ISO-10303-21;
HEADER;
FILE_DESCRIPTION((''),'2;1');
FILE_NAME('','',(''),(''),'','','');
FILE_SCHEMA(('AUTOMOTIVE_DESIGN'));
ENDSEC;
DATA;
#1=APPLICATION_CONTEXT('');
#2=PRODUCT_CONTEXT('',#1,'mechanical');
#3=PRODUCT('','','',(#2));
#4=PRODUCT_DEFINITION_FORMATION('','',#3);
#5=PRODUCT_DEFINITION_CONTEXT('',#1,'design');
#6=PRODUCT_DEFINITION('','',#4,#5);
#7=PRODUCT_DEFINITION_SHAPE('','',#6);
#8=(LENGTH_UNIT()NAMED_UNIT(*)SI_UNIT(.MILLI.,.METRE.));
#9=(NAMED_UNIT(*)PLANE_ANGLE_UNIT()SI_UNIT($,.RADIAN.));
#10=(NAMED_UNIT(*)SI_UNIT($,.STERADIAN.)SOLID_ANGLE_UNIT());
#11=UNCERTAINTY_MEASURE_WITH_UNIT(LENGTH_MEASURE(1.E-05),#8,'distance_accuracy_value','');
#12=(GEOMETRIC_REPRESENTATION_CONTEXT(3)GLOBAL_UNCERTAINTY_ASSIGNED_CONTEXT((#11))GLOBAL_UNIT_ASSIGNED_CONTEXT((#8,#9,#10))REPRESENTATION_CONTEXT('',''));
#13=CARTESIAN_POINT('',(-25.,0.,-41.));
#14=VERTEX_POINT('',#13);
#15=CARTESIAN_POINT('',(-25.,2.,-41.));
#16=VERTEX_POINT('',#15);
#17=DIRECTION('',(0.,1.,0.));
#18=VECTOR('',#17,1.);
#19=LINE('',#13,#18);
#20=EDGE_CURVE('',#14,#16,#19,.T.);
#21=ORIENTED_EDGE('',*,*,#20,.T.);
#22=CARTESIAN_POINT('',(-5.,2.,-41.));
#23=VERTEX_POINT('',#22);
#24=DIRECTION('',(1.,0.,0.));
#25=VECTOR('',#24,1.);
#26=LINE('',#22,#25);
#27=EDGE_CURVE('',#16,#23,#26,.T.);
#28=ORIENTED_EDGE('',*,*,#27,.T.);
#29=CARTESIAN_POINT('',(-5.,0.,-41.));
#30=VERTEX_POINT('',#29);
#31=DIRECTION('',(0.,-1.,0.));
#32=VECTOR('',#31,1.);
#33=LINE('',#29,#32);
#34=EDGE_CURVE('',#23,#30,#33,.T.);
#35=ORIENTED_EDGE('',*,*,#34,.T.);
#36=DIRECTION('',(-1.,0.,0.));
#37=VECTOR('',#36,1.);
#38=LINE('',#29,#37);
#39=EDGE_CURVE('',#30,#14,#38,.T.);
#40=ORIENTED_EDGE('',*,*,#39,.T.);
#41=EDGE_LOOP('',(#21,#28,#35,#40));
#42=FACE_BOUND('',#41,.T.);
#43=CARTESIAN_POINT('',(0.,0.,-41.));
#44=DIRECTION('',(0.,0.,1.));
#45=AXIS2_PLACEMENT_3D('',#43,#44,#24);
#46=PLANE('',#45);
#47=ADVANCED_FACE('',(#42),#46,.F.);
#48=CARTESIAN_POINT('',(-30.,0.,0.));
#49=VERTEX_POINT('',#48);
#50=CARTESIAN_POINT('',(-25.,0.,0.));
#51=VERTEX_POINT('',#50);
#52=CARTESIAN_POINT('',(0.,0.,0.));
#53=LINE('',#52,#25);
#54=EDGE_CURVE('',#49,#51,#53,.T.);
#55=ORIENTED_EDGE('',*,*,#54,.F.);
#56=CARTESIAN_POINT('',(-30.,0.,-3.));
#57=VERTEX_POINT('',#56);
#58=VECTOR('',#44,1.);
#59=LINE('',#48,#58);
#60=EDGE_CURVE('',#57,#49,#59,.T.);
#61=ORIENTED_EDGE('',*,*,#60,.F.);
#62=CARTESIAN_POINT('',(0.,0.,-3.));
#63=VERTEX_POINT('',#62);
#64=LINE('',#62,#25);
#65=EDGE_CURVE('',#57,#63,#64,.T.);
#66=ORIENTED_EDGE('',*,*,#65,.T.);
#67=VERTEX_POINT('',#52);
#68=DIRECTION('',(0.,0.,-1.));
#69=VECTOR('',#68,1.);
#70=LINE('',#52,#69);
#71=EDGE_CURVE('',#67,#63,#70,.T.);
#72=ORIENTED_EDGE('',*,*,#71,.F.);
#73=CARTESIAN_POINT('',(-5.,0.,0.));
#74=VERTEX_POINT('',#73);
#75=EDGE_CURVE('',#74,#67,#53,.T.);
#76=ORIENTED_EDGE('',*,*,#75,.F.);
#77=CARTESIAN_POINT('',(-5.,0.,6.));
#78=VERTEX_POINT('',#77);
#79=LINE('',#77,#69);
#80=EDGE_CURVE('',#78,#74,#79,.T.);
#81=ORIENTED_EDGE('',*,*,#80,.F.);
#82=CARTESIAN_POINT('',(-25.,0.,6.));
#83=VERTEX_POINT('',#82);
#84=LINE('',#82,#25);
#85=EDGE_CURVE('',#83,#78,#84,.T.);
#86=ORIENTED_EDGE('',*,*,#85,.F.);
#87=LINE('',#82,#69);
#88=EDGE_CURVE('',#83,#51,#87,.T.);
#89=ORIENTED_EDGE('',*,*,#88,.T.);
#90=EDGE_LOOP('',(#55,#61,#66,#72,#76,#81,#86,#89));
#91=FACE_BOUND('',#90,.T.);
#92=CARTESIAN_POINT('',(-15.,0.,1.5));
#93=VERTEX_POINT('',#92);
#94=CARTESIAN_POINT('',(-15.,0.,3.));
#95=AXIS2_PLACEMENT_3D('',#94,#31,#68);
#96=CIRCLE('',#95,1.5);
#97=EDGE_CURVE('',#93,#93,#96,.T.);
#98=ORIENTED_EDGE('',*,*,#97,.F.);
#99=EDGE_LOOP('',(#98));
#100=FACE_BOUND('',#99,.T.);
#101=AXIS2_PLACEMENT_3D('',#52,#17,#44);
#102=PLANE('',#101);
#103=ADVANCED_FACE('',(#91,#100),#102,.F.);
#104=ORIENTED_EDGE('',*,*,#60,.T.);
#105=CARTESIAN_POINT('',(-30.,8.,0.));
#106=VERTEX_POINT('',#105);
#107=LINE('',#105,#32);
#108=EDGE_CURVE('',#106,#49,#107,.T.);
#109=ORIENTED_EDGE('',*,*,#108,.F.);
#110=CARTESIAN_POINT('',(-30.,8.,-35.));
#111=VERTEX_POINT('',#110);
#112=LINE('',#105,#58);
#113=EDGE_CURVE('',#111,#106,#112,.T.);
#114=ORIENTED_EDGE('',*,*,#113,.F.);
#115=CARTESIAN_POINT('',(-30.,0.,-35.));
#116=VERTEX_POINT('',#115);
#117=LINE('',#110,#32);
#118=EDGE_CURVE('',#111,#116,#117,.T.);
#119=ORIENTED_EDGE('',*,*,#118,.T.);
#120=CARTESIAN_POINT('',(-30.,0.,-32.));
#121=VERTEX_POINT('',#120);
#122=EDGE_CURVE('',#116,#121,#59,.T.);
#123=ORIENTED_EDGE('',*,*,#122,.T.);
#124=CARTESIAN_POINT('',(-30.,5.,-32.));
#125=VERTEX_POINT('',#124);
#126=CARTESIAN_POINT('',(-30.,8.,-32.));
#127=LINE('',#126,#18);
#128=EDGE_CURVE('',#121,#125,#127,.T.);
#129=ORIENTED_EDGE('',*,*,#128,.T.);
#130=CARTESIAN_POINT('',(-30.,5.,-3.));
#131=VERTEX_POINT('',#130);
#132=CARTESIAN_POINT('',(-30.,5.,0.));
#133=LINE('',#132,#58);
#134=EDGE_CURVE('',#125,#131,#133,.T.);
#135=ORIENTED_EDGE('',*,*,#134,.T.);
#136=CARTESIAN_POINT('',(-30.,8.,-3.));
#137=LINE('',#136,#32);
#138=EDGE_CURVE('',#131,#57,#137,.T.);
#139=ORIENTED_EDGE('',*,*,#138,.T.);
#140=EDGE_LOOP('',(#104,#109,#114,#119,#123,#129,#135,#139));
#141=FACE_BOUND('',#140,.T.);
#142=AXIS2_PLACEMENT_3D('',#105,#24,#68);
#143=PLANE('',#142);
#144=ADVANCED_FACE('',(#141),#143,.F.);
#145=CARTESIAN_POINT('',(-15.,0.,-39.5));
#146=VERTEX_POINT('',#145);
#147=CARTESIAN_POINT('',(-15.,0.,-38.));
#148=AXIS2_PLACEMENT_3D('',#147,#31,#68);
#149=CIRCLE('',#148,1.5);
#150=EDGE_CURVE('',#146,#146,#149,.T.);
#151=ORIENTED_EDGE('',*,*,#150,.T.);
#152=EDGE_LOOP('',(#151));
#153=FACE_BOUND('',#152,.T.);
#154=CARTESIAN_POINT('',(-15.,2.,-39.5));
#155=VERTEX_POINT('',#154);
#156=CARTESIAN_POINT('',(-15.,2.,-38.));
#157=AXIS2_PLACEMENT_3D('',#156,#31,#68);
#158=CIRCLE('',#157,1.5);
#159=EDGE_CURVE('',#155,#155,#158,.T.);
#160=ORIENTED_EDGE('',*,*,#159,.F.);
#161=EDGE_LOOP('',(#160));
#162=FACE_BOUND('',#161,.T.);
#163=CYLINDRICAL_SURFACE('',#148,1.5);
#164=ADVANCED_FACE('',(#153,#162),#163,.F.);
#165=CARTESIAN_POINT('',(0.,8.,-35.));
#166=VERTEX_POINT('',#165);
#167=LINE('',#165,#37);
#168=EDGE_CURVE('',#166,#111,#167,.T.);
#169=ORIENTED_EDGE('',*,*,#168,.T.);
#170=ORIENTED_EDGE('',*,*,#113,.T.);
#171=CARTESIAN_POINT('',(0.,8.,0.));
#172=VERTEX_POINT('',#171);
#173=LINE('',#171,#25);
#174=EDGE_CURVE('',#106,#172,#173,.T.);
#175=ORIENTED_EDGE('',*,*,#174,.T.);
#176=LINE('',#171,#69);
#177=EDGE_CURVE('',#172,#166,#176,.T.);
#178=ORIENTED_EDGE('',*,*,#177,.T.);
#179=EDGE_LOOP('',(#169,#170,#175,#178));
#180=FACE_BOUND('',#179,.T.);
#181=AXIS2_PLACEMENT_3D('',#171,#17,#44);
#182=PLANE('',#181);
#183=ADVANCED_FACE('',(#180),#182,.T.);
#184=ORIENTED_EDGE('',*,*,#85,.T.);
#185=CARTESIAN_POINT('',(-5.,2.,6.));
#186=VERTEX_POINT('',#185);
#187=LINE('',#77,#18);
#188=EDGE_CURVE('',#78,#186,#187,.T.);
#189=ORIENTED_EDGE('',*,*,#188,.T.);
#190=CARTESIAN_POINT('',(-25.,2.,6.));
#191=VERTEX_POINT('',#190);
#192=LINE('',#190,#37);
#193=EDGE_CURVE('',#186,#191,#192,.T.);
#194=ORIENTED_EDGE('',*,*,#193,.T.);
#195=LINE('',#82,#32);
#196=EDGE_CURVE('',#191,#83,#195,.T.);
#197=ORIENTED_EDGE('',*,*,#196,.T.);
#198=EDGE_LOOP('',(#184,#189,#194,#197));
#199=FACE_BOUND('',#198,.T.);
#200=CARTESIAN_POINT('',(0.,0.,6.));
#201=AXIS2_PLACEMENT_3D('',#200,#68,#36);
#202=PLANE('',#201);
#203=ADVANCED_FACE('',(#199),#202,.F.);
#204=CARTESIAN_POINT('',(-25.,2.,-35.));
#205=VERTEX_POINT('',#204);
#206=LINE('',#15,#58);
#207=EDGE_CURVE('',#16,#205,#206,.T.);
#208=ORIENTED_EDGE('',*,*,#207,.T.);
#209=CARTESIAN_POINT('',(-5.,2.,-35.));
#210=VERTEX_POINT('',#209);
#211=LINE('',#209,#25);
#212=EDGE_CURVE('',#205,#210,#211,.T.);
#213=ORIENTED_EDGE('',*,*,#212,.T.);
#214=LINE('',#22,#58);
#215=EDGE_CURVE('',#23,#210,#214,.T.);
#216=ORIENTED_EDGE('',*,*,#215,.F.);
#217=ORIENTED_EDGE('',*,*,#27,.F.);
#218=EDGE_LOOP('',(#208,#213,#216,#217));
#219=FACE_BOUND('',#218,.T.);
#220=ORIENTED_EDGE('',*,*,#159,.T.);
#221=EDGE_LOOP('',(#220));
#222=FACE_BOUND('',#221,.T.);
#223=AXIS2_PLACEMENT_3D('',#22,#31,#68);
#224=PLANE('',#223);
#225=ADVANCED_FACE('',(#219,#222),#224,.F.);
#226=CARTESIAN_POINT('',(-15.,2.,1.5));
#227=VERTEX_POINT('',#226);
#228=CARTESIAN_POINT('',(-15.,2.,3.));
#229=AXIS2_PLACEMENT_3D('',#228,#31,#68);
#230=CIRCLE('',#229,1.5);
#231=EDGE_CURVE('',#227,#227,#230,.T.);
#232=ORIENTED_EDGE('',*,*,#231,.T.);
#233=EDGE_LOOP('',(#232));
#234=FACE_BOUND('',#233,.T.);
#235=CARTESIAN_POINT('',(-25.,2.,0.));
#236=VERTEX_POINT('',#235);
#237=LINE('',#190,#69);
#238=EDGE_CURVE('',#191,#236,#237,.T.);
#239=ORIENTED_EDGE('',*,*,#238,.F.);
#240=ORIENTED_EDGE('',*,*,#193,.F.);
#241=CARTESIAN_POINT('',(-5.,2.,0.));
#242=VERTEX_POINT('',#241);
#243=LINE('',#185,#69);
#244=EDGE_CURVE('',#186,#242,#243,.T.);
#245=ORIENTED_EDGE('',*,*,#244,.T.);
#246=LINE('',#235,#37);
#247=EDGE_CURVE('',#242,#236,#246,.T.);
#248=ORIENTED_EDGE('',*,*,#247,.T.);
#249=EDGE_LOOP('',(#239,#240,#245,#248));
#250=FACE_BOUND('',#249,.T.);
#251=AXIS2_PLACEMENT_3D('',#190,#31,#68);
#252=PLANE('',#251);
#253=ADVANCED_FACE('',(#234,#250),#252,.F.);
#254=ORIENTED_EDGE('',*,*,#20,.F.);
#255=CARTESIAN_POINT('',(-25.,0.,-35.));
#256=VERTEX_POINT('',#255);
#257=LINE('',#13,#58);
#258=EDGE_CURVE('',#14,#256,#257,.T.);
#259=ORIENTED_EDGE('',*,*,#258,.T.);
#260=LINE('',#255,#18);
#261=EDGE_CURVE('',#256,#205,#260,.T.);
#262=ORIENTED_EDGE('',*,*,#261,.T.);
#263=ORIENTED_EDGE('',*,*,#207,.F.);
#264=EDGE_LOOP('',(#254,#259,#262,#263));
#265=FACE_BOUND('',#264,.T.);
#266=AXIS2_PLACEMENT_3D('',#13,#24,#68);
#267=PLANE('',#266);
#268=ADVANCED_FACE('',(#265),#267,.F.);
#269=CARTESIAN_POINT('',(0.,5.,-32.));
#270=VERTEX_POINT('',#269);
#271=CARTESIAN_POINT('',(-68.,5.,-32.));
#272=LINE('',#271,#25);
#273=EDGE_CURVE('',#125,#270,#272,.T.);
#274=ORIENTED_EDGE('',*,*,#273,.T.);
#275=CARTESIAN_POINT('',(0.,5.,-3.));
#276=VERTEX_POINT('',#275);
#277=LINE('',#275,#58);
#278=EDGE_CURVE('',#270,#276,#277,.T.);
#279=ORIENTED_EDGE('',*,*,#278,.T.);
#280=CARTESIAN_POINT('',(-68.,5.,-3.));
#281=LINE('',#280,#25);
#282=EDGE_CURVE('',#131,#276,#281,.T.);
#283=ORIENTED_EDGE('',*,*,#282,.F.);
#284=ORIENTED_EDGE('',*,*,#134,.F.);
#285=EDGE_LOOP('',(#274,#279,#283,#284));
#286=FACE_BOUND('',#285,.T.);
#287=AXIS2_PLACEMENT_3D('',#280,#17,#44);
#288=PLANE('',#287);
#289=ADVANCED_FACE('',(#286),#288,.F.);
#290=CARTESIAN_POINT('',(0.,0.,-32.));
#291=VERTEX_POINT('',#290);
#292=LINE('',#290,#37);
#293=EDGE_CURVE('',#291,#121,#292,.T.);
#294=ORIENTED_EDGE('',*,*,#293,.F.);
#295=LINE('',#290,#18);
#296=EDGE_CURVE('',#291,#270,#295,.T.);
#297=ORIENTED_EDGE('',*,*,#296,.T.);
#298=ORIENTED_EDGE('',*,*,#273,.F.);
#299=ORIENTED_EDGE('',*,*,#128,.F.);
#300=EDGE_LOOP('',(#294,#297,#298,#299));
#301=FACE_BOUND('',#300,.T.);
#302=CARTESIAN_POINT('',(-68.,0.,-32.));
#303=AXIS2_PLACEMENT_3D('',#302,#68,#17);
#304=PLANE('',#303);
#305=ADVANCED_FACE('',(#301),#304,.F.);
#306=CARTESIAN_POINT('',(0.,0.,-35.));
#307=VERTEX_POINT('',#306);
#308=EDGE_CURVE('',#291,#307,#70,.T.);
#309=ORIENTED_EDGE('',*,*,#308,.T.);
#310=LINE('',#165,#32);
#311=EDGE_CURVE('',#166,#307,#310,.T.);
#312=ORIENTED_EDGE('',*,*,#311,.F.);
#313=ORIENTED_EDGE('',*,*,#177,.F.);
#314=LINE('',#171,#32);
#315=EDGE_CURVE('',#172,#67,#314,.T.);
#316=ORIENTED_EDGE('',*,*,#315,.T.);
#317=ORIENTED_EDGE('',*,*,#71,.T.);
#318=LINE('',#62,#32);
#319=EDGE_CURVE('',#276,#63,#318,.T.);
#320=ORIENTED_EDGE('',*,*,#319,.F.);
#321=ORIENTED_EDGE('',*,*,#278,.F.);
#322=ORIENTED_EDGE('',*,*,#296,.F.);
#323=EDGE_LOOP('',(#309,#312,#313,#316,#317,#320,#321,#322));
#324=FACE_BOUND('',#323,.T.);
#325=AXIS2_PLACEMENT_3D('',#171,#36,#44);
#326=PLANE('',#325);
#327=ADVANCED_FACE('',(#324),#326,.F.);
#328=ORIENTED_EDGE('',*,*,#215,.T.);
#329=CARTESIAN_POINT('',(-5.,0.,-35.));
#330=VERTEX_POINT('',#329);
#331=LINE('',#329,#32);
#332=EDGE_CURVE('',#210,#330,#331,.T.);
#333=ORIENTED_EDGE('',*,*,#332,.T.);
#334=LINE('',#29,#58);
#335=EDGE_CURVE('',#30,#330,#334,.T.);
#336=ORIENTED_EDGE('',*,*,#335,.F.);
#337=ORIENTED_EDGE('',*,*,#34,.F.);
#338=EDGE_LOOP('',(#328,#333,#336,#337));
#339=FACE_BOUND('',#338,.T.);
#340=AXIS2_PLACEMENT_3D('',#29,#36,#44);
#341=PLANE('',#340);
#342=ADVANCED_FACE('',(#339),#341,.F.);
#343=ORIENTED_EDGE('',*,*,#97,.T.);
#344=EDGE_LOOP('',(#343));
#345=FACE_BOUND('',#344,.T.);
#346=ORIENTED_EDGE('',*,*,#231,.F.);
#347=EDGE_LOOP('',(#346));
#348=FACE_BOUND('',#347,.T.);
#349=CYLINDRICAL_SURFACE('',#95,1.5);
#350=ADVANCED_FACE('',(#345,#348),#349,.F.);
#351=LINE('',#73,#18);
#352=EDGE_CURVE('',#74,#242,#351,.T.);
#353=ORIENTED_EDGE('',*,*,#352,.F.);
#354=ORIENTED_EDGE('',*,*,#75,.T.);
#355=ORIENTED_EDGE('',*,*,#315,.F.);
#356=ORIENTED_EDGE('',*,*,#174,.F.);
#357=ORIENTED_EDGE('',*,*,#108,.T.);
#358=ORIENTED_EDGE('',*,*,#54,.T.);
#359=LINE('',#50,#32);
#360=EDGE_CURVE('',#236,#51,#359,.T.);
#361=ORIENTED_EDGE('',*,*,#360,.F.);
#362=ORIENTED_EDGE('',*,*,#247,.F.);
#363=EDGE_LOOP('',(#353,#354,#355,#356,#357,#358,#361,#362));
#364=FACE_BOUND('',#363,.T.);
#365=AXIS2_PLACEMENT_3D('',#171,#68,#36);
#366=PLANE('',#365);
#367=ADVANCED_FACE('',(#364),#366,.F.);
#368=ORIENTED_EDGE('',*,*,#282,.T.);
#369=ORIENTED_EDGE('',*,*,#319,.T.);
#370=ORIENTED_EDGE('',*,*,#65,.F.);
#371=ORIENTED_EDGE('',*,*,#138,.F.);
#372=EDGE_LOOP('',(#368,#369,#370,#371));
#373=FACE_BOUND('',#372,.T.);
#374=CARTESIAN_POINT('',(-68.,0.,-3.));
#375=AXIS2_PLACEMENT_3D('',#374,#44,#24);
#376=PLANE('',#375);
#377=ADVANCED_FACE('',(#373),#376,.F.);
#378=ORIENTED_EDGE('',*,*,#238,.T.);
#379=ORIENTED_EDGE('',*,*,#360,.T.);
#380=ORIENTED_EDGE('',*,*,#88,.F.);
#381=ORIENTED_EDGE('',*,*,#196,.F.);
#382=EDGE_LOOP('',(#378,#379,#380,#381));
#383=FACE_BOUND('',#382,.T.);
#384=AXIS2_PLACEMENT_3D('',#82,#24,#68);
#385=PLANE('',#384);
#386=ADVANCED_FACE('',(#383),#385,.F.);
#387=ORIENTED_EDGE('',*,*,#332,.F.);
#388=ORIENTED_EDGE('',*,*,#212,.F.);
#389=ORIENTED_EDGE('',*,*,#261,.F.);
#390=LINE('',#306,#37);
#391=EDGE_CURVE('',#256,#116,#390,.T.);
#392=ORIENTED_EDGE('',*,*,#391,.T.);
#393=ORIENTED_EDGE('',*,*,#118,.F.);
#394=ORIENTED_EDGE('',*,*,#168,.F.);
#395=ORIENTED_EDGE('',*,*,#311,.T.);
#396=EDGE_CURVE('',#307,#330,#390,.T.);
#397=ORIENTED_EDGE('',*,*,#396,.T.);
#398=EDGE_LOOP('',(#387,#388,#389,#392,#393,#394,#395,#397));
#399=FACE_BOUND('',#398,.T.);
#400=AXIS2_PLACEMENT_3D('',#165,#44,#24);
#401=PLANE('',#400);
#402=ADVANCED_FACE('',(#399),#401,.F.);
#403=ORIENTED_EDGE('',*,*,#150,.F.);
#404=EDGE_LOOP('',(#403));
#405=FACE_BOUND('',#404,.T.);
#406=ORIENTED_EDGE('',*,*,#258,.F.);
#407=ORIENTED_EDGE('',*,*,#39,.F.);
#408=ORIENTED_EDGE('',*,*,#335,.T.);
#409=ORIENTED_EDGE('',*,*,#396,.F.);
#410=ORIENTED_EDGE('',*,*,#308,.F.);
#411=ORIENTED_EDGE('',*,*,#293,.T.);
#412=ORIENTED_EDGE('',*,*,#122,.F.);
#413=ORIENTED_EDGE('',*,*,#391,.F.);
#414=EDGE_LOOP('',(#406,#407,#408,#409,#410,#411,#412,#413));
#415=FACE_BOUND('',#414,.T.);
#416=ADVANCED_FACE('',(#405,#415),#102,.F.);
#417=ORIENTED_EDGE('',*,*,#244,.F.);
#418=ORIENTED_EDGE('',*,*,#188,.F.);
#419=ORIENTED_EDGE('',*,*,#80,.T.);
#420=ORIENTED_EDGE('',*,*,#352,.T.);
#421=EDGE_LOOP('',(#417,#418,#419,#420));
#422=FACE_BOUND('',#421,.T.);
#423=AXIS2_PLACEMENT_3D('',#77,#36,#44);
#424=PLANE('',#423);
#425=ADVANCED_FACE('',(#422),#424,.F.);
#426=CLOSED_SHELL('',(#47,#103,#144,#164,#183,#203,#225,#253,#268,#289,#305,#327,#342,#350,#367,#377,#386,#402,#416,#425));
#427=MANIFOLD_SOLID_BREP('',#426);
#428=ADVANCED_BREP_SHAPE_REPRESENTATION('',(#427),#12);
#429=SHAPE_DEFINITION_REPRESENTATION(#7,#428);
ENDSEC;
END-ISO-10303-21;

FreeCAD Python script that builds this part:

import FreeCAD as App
import Part
import Sketcher
from FreeCAD import Vector
Q = App.Units.Quantity


def add_polygon(sketch, points):
    """Adds a closed chain of lines whose ends are joined by coincident constraints."""
    first, n = sketch.GeometryCount, len(points)
    for a, b in zip(points, points[1:] + points[:1]):
        sketch.addGeometry(Part.LineSegment(App.Vector(*a, 0), App.Vector(*b, 0)), False)
    for i in range(n):
        sketch.addConstraint(Sketcher.Constraint("Coincident", first + i, 2, first + (i + 1) % n, 1))

doc = App.newDocument("Part")
body = doc.addObject("PartDesign::Body", "Body")

# Sketch on XZ plane
sketch1 = body.newObject("Sketcher::SketchObject", "Sketch")
sketch1.AttachmentSupport = (doc.getObject("XZ_Plane"), [""])
sketch1.MapMode = "FlatFace"
add_polygon(sketch1, [(-30, -35), (-30, 0), (0, 0), (0, -35)])  # lines 0-3
sketch1.addConstraint([
    Sketcher.Constraint("Vertical", 0),
    Sketcher.Constraint("Horizontal", 1),
    Sketcher.Constraint("Vertical", 2),
    Sketcher.Constraint("Horizontal", 3),
    Sketcher.Constraint("Coincident", 1, 2, -1, 1),
    Sketcher.Constraint("DistanceX", 1, 1, 1, 2, Q("30 mm")),
    Sketcher.Constraint("DistanceY", 0, 1, 0, 2, Q("35 mm")),
])
pad1 = body.newObject("PartDesign::Pad", "Pad")
pad1.Profile = sketch1
pad1.Length = 8
pad1.Reversed = True

# Sketch on YZ plane
sketch2 = body.newObject("Sketcher::SketchObject", "Sketch001")
sketch2.AttachmentSupport = (doc.getObject("YZ_Plane"), [""])
sketch2.MapMode = "FlatFace"
add_polygon(sketch2, [(5, -3), (0, -3), (0, -32), (5, -32)])  # lines 0-3
sketch2.addConstraint([
    Sketcher.Constraint("Horizontal", 0),
    Sketcher.Constraint("Vertical", 1),
    Sketcher.Constraint("Horizontal", 2),
    Sketcher.Constraint("Vertical", 3),
    Sketcher.Constraint("PointOnObject", 0, 2, -2),
    Sketcher.Constraint("DistanceX", 0, 2, 0, 1, Q("5 mm")),
    Sketcher.Constraint("DistanceY", 1, 2, 1, 1, Q("29 mm")),
    Sketcher.Constraint("DistanceY", 0, 2, -1, 1, Q("3 mm")),
])
pocket1 = body.newObject("PartDesign::Pocket", "Pocket")
pocket1.Profile = sketch2
pocket1.Length = 68

# Sketch on XY plane
sketch3 = body.newObject("Sketcher::SketchObject", "Sketch002")
sketch3.AttachmentSupport = (doc.getObject("XY_Plane"), [""])
sketch3.MapMode = "FlatFace"
add_polygon(sketch3, [(-25, 2), (-25, 0), (-5, 0), (-5, 2)])  # lines 0-3
sketch3.addConstraint([
    Sketcher.Constraint("Vertical", 0),
    Sketcher.Constraint("Horizontal", 1),
    Sketcher.Constraint("Vertical", 2),
    Sketcher.Constraint("Horizontal", 3),
    Sketcher.Constraint("PointOnObject", 0, 2, -1),
    Sketcher.Constraint("DistanceX", 1, 1, 1, 2, Q("20 mm")),
    Sketcher.Constraint("DistanceY", 0, 2, 0, 1, Q("2 mm")),
    Sketcher.Constraint("DistanceX", 0, 2, -1, 1, Q("25 mm")),
])
pad2 = body.newObject("PartDesign::Pad", "Pad001")
pad2.Profile = sketch3
pad2.Length = 6

# Sketch on XY plane
sketch4 = body.newObject("Sketcher::SketchObject", "Sketch003")
sketch4.AttachmentSupport = (doc.getObject("XY_Plane"), [""])
sketch4.MapMode = "FlatFace"
sketch4.AttachmentOffset = App.Placement(Vector(0, 0, -35), App.Rotation())
add_polygon(sketch4, [(-5, 2), (-5, 0), (-25, 0), (-25, 2)])  # lines 0-3
sketch4.addConstraint([
    Sketcher.Constraint("Vertical", 0),
    Sketcher.Constraint("Horizontal", 1),
    Sketcher.Constraint("Vertical", 2),
    Sketcher.Constraint("Horizontal", 3),
    Sketcher.Constraint("PointOnObject", 0, 2, -1),
    Sketcher.Constraint("DistanceX", 1, 2, 1, 1, Q("20 mm")),
    Sketcher.Constraint("DistanceY", 0, 2, 0, 1, Q("2 mm")),
    Sketcher.Constraint("DistanceX", 0, 2, -1, 1, Q("5 mm")),
])
pad3 = body.newObject("PartDesign::Pad", "Pad002")
pad3.Profile = sketch4
pad3.Length = 6
pad3.Reversed = True

# Sketch on XZ plane
sketch5 = body.newObject("Sketcher::SketchObject", "Sketch004")
sketch5.AttachmentSupport = (doc.getObject("XZ_Plane"), [""])
sketch5.MapMode = "FlatFace"
sketch5.addGeometry([
    Part.Circle(Vector(-15, -38, 0), Vector(0, 0, 1), 1.5),
    Part.Circle(Vector(-15, 3, 0), Vector(0, 0, 1), 1.5),
], False)
sketch5.addConstraint([
    Sketcher.Constraint("Equal", 0, 1),
    Sketcher.Constraint("Vertical", 0, 3, 1, 3),
    Sketcher.Constraint("Diameter", 0, Q("3 mm")),
    Sketcher.Constraint("DistanceX", 0, 3, -1, 1, Q("15 mm")),
    Sketcher.Constraint("DistanceY", 0, 3, -1, 1, Q("38 mm")),
    Sketcher.Constraint("DistanceY", -1, 1, 1, 3, Q("3 mm")),
])
doc.recompute()
hole = body.newObject("PartDesign::Hole", "Hole")
hole.Profile = sketch5
hole.ThreadType = "None"
hole.Diameter = 3
hole.DepthType = "Dimension"
hole.Depth = 12
hole.DrillPoint = "Angled"
hole.DrillPointAngle = 118

doc.recompute()
